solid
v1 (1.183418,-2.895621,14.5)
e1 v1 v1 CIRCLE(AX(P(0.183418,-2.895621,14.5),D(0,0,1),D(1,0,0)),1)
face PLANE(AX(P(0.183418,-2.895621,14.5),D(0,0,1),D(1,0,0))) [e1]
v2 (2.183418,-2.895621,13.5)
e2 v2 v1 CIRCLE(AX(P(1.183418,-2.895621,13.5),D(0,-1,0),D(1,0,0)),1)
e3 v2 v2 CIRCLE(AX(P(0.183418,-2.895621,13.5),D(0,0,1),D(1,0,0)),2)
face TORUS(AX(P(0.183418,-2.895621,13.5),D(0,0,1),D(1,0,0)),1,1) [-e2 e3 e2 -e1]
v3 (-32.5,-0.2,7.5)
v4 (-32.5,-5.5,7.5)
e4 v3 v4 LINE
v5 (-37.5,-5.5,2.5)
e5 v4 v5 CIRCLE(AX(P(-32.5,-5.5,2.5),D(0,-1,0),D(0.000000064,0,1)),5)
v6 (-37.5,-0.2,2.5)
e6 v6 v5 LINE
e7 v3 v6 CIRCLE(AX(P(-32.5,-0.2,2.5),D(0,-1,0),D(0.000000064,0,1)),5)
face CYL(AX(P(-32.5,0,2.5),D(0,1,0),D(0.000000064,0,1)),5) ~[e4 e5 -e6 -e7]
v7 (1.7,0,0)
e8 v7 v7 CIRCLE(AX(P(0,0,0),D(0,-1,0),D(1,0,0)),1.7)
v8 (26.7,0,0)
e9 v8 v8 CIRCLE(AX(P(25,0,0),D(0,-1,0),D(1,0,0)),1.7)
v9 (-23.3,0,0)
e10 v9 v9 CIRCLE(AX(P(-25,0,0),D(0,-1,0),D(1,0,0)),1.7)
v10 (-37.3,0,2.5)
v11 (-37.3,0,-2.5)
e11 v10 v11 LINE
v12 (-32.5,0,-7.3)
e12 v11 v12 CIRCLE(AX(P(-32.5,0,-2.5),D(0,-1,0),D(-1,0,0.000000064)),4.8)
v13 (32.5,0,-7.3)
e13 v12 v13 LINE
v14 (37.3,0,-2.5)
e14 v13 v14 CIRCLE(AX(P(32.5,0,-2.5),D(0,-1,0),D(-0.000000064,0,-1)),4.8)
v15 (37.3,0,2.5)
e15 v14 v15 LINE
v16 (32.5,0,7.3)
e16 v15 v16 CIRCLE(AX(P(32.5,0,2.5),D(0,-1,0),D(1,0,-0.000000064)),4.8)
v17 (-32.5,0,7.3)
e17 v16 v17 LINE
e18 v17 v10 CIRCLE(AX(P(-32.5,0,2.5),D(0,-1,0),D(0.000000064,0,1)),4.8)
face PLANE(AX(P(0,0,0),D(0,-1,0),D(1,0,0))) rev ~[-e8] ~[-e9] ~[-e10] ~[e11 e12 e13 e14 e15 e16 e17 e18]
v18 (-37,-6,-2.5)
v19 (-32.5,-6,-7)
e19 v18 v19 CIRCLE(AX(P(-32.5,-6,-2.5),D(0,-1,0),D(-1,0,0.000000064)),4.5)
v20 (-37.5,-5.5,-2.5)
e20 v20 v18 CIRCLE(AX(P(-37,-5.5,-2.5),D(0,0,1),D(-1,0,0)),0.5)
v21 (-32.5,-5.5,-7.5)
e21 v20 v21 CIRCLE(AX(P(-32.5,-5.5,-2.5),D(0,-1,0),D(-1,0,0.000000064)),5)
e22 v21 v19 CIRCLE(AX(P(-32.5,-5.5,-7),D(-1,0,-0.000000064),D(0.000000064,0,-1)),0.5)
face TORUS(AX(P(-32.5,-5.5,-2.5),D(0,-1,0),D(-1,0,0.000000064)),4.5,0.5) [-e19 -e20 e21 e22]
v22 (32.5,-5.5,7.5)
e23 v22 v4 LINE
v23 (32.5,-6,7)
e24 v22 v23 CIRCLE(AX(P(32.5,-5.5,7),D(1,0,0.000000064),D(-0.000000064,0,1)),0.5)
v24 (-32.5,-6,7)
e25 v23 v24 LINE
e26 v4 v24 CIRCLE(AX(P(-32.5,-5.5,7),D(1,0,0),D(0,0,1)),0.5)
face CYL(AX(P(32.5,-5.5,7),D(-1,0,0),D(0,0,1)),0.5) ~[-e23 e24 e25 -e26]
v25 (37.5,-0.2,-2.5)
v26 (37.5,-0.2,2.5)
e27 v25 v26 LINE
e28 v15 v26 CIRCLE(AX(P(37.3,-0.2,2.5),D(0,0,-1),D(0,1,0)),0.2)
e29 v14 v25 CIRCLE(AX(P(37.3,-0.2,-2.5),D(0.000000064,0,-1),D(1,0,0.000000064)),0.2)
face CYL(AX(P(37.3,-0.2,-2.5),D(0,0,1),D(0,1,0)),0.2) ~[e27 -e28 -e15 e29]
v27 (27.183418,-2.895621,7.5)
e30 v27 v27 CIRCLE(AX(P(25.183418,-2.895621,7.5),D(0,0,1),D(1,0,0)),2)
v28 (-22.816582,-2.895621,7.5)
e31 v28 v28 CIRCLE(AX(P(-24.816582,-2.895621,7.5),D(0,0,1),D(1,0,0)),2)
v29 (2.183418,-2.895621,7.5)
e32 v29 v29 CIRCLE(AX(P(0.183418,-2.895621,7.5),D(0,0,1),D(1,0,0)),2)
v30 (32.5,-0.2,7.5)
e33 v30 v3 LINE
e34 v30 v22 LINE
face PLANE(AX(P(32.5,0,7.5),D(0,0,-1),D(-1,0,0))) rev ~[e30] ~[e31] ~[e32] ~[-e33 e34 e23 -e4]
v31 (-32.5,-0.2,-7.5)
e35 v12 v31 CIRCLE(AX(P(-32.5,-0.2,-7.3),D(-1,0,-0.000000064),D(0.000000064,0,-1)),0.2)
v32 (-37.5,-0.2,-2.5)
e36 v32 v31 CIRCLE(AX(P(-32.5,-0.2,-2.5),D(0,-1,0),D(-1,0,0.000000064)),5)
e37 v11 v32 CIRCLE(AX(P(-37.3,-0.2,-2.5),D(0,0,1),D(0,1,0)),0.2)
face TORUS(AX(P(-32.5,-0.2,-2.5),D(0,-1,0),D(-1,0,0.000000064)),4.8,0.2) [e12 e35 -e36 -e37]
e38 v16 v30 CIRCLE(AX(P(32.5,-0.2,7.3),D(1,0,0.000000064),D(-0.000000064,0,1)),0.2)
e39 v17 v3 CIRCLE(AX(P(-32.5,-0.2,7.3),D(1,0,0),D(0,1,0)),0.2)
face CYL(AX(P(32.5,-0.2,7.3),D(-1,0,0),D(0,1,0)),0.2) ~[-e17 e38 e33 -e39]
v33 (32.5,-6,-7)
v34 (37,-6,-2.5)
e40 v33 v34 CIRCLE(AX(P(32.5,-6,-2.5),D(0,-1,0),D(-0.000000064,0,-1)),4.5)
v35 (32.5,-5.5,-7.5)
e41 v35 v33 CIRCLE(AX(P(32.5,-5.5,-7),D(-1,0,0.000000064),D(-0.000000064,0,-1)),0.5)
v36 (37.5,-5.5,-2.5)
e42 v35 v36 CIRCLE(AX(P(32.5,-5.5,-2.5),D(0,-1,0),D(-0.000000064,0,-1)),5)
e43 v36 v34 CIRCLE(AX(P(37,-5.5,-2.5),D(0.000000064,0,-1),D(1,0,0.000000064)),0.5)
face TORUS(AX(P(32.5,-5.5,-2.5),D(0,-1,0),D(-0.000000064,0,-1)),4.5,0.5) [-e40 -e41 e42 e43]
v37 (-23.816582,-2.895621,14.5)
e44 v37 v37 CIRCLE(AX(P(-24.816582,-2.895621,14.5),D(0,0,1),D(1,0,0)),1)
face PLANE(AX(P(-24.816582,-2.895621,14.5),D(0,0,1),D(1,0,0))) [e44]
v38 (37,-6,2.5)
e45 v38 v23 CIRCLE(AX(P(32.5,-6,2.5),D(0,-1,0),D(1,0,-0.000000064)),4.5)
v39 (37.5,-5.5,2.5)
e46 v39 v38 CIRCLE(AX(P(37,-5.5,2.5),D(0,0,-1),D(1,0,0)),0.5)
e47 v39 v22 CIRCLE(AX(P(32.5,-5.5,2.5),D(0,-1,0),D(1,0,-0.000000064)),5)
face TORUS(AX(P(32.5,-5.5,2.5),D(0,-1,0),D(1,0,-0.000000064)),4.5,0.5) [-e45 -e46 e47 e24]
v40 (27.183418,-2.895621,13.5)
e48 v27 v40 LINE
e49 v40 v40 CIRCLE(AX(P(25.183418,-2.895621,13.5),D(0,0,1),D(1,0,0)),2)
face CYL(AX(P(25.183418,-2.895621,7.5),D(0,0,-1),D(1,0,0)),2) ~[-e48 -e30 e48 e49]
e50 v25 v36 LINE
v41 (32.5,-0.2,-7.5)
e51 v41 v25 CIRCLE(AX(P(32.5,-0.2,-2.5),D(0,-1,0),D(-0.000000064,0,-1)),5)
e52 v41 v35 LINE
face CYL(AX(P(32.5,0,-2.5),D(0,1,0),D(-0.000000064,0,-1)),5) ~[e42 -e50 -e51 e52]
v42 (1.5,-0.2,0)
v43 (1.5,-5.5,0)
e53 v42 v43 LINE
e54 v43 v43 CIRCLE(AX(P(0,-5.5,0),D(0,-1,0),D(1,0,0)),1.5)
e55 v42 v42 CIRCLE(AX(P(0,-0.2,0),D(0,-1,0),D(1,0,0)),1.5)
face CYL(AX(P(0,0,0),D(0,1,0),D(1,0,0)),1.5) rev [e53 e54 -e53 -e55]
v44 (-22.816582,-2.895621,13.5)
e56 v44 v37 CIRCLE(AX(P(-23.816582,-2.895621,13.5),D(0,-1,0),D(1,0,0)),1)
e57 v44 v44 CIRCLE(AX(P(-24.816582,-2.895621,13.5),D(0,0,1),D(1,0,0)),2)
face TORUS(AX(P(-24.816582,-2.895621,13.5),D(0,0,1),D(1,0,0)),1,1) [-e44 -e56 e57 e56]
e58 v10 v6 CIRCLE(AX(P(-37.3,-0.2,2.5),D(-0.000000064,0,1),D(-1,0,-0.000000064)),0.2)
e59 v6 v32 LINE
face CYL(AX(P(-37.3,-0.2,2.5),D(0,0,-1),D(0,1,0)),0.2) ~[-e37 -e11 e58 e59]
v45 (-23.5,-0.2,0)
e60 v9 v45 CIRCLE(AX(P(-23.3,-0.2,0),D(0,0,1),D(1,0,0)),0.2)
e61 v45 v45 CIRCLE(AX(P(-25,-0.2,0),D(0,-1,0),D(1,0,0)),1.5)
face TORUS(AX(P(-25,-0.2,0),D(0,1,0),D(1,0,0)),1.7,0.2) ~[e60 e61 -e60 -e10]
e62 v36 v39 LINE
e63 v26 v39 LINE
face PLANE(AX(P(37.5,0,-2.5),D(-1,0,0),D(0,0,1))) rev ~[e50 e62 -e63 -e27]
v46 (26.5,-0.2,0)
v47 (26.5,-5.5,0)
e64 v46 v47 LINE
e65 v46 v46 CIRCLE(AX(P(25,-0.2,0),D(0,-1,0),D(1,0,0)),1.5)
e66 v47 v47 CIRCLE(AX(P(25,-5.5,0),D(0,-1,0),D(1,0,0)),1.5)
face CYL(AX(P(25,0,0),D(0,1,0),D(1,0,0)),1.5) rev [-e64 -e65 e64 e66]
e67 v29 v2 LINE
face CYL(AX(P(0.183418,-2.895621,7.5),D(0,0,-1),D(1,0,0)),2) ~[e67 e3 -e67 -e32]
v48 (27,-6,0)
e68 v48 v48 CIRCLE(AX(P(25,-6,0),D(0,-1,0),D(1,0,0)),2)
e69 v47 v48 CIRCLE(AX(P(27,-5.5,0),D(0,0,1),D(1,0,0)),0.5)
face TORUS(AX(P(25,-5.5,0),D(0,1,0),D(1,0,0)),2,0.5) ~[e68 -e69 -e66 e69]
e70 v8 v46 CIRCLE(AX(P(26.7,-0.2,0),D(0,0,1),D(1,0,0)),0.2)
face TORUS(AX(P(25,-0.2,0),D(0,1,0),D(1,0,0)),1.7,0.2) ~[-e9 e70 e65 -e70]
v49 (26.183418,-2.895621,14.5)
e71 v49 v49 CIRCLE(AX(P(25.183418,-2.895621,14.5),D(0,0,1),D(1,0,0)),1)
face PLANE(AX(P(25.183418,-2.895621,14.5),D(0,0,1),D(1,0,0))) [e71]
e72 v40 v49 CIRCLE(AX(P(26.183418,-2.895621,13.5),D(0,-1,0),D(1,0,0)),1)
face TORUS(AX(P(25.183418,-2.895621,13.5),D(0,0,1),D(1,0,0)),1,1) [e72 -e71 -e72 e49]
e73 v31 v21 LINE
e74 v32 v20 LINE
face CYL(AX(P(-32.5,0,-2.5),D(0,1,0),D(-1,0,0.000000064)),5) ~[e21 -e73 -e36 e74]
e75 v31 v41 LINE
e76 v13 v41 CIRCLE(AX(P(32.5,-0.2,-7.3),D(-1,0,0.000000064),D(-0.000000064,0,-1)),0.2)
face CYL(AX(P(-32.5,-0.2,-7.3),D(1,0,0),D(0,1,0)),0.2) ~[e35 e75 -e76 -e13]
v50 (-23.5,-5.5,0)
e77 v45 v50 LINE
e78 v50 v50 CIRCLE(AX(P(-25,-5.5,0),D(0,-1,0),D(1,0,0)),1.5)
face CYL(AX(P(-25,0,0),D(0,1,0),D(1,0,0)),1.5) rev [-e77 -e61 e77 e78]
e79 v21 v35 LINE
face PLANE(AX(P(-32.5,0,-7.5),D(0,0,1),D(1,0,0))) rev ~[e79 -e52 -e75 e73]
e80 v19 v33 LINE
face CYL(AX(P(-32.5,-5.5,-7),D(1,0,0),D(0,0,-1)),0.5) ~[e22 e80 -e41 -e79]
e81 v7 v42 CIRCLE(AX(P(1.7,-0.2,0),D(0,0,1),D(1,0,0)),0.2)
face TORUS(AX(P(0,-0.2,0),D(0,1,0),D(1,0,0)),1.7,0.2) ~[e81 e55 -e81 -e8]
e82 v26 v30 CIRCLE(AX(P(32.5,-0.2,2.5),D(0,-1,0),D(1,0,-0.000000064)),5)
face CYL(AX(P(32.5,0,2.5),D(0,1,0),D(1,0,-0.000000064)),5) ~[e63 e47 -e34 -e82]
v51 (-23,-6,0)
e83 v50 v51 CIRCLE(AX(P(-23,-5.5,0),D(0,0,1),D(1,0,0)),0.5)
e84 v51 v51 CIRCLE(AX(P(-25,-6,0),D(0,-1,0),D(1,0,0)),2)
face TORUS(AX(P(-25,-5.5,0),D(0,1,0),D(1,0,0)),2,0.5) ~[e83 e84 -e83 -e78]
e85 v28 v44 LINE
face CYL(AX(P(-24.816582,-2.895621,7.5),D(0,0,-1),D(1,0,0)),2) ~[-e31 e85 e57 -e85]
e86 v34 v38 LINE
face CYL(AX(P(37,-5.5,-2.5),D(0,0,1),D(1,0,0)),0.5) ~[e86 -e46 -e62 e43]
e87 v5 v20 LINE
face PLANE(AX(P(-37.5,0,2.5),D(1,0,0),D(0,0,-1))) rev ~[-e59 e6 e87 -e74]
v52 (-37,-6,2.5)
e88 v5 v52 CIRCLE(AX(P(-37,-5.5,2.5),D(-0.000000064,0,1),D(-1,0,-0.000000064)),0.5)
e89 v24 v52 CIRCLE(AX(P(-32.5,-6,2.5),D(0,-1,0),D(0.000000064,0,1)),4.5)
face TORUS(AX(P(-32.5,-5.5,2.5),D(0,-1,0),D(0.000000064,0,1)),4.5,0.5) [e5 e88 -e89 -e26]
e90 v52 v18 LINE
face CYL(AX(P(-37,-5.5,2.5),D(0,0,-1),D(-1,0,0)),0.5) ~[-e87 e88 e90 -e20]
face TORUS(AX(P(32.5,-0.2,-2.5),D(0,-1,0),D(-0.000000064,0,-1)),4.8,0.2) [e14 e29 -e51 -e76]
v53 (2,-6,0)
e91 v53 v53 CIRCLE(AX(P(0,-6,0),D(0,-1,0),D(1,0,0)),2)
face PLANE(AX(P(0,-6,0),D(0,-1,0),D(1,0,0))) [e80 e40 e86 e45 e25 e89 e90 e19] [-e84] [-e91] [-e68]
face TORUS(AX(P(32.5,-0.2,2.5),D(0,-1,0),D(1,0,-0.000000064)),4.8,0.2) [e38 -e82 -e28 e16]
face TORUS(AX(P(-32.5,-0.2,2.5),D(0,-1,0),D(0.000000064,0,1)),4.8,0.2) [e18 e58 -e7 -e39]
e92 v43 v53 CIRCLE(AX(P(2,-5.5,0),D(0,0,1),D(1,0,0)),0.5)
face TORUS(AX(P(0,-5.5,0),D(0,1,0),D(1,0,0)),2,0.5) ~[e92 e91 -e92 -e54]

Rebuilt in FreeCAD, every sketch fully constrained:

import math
import FreeCAD as App
import Part
import Sketcher
from FreeCAD import Vector


def edges_at(feature, points):
    """Names of the edges that pass closest to the given points."""
    edges = feature.Shape.Edges
    near = lambda p: min(range(len(edges)), key=lambda i: edges[i].distToShape(Part.Vertex(*p))[0])
    return sorted({f"Edge{near(p) + 1}" for p in points})

doc = App.newDocument("Part")
body = doc.addObject("PartDesign::Body", "Body")

sketch1 = body.newObject("Sketcher::SketchObject", "Sketch")
sketch1.AttachmentSupport = (doc.getObject("XZ_Plane"), [""])
sketch1.MapMode = "FlatFace"
sketch1.addGeometry(Part.ArcOfCircle(Part.Circle(Vector(32.5, 2.5, 0), Vector(0, 0, 1), 5), math.radians(0), math.radians(90)), False)
sketch1.addGeometry(Part.LineSegment(Vector(32.5, 7.5, 0), Vector(-32.5, 7.5, 0)), False)
sketch1.addGeometry(Part.ArcOfCircle(Part.Circle(Vector(-32.5, 2.5, 0), Vector(0, 0, 1), 5), math.radians(90), math.radians(180)), False)
sketch1.addGeometry(Part.LineSegment(Vector(-37.5, 2.5, 0), Vector(-37.5, -2.5, 0)), False)
sketch1.addGeometry(Part.ArcOfCircle(Part.Circle(Vector(-32.5, -2.5, 0), Vector(0, 0, 1), 5), math.radians(180), math.radians(270)), False)
sketch1.addGeometry(Part.LineSegment(Vector(-32.5, -7.5, 0), Vector(32.5, -7.5, 0)), False)
sketch1.addGeometry(Part.ArcOfCircle(Part.Circle(Vector(32.5, -2.5, 0), Vector(0, 0, 1), 5), math.radians(-90), math.radians(0)), False)
sketch1.addGeometry(Part.LineSegment(Vector(37.5, -2.5, 0), Vector(37.5, 2.5, 0)), False)
sketch1.addGeometry(Part.Circle(Vector(-25, 0, 0), Vector(0, 0, 1), 1.5), False)
sketch1.addGeometry(Part.Circle(Vector(0, 0, 0), Vector(0, 0, 1), 1.5), False)
sketch1.addGeometry(Part.Circle(Vector(25, 0, 0), Vector(0, 0, 1), 1.5), False)
sketch1.addConstraint(Sketcher.Constraint("Tangent", 0, 2, 1, 1))
sketch1.addConstraint(Sketcher.Constraint("Tangent", 1, 2, 2, 1))
sketch1.addConstraint(Sketcher.Constraint("Tangent", 2, 2, 3, 1))
sketch1.addConstraint(Sketcher.Constraint("Tangent", 3, 2, 4, 1))
sketch1.addConstraint(Sketcher.Constraint("Tangent", 4, 2, 5, 1))
sketch1.addConstraint(Sketcher.Constraint("Tangent", 5, 2, 6, 1))
sketch1.addConstraint(Sketcher.Constraint("Tangent", 6, 2, 7, 1))
sketch1.addConstraint(Sketcher.Constraint("Tangent", 7, 2, 0, 1))
sketch1.addConstraint(Sketcher.Constraint("Horizontal", 1))
sketch1.addConstraint(Sketcher.Constraint("Vertical", 3))
sketch1.addConstraint(Sketcher.Constraint("Horizontal", 5))
sketch1.addConstraint(Sketcher.Constraint("Vertical", 7))
sketch1.addConstraint(Sketcher.Constraint("Coincident", 9, 3, -1, 1))
sketch1.addConstraint(Sketcher.Constraint("Equal", 0, 2))
sketch1.addConstraint(Sketcher.Constraint("Equal", 2, 4))
sketch1.addConstraint(Sketcher.Constraint("Equal", 4, 6))
sketch1.addConstraint(Sketcher.Constraint("Equal", 8, 9))
sketch1.addConstraint(Sketcher.Constraint("Equal", 9, 10))
sketch1.addConstraint(Sketcher.Constraint("Symmetric", 0, 3, 4, 3, -1, 1))
sketch1.addConstraint(Sketcher.Constraint("Symmetric", 8, 3, 10, 3, -1, 1))
sketch1.addConstraint(Sketcher.Constraint("PointOnObject", 8, 3, -1))
sketch1.addConstraint(Sketcher.Constraint("Diameter", 8, 3.0))
sketch1.addConstraint(Sketcher.Constraint("Radius", 0, 5.0))
sketch1.addConstraint(Sketcher.Constraint("DistanceX", 1, 2, 1, 1, 65.0))
sketch1.addConstraint(Sketcher.Constraint("DistanceY", 3, 2, 3, 1, 5.0))
sketch1.addConstraint(Sketcher.Constraint("DistanceX", 8, 3, -1, 1, 25.0))
pad1 = body.newObject("PartDesign::Pad", "Pad")
pad1.Profile = sketch1
pad1.Length = 6
doc.recompute()

fillet = body.newObject("PartDesign::Fillet", "Fillet")
fillet.Base = (pad1, edges_at(pad1, [
    (36.036, -6, -6.036),
    (37.5, -6, 0),
    (36.036, -6, 6.036),
    (0, -6, 7.5),
    (-36.036, -6, 6.036),
    (-37.5, -6, 0),
    (-36.036, -6, -6.036),
    (0, -6, -7.5),
    (-26.5, -6, 0),
    (-1.5, -6, 0),
    (23.5, -6, 0),
]))
fillet.Radius = 0.5
doc.recompute()

fillet2 = body.newObject("PartDesign::Fillet", "Fillet001")
fillet2.Base = (fillet, edges_at(fillet, [
    (36.036, 0, -6.036),
    (37.5, 0, 0),
    (36.036, 0, 6.036),
    (0, 0, 7.5),
    (-36.036, 0, 6.036),
    (-37.5, 0, 0),
    (-36.036, 0, -6.036),
    (0, 0, -7.5),
    (-26.5, 0, 0),
    (-1.5, 0, 0),
    (23.5, 0, 0),
]))
fillet2.Radius = 0.2

sketch2 = body.newObject("Sketcher::SketchObject", "Sketch001")
sketch2.AttachmentSupport = (doc.getObject("XY_Plane"), [""])
sketch2.MapMode = "FlatFace"
sketch2.AttachmentOffset = App.Placement(Vector(0, 0, 7.5), App.Rotation())
sketch2.addGeometry(Part.Circle(Vector(-24.8, -2.9, 0), Vector(0, 0, 1), 2), False)
sketch2.addGeometry(Part.Circle(Vector(0.2, -2.9, 0), Vector(0, 0, 1), 2), False)
sketch2.addGeometry(Part.Circle(Vector(25.2, -2.9, 0), Vector(0, 0, 1), 2), False)
sketch2.addConstraint(Sketcher.Constraint("Equal", 0, 1))
sketch2.addConstraint(Sketcher.Constraint("Equal", 1, 2))
sketch2.addConstraint(Sketcher.Constraint("Horizontal", 0, 3, 1, 3))
sketch2.addConstraint(Sketcher.Constraint("Horizontal", 1, 3, 2, 3))
sketch2.addConstraint(Sketcher.Constraint("Diameter", 0, 4.0))
sketch2.addConstraint(Sketcher.Constraint("DistanceX", 0, 3, 1, 3, 25.0))
sketch2.addConstraint(Sketcher.Constraint("DistanceX", 1, 3, 2, 3, 25.0))
sketch2.addConstraint(Sketcher.Constraint("DistanceY", 0, 3, -1, 1, 2.895621))
sketch2.addConstraint(Sketcher.Constraint("DistanceX", 0, 3, -1, 1, 24.816582))
pad2 = body.newObject("PartDesign::Pad", "Pad001")
pad2.Profile = sketch2
pad2.Length = 7
doc.recompute()

fillet3 = body.newObject("PartDesign::Fillet", "Fillet002")
fillet3.Base = (pad2, edges_at(pad2, [(-26.817, -2.896, 14.5), (-1.817, -2.896, 14.5), (23.183, -2.896, 14.5)]))
fillet3.Radius = 1

doc.recompute()
